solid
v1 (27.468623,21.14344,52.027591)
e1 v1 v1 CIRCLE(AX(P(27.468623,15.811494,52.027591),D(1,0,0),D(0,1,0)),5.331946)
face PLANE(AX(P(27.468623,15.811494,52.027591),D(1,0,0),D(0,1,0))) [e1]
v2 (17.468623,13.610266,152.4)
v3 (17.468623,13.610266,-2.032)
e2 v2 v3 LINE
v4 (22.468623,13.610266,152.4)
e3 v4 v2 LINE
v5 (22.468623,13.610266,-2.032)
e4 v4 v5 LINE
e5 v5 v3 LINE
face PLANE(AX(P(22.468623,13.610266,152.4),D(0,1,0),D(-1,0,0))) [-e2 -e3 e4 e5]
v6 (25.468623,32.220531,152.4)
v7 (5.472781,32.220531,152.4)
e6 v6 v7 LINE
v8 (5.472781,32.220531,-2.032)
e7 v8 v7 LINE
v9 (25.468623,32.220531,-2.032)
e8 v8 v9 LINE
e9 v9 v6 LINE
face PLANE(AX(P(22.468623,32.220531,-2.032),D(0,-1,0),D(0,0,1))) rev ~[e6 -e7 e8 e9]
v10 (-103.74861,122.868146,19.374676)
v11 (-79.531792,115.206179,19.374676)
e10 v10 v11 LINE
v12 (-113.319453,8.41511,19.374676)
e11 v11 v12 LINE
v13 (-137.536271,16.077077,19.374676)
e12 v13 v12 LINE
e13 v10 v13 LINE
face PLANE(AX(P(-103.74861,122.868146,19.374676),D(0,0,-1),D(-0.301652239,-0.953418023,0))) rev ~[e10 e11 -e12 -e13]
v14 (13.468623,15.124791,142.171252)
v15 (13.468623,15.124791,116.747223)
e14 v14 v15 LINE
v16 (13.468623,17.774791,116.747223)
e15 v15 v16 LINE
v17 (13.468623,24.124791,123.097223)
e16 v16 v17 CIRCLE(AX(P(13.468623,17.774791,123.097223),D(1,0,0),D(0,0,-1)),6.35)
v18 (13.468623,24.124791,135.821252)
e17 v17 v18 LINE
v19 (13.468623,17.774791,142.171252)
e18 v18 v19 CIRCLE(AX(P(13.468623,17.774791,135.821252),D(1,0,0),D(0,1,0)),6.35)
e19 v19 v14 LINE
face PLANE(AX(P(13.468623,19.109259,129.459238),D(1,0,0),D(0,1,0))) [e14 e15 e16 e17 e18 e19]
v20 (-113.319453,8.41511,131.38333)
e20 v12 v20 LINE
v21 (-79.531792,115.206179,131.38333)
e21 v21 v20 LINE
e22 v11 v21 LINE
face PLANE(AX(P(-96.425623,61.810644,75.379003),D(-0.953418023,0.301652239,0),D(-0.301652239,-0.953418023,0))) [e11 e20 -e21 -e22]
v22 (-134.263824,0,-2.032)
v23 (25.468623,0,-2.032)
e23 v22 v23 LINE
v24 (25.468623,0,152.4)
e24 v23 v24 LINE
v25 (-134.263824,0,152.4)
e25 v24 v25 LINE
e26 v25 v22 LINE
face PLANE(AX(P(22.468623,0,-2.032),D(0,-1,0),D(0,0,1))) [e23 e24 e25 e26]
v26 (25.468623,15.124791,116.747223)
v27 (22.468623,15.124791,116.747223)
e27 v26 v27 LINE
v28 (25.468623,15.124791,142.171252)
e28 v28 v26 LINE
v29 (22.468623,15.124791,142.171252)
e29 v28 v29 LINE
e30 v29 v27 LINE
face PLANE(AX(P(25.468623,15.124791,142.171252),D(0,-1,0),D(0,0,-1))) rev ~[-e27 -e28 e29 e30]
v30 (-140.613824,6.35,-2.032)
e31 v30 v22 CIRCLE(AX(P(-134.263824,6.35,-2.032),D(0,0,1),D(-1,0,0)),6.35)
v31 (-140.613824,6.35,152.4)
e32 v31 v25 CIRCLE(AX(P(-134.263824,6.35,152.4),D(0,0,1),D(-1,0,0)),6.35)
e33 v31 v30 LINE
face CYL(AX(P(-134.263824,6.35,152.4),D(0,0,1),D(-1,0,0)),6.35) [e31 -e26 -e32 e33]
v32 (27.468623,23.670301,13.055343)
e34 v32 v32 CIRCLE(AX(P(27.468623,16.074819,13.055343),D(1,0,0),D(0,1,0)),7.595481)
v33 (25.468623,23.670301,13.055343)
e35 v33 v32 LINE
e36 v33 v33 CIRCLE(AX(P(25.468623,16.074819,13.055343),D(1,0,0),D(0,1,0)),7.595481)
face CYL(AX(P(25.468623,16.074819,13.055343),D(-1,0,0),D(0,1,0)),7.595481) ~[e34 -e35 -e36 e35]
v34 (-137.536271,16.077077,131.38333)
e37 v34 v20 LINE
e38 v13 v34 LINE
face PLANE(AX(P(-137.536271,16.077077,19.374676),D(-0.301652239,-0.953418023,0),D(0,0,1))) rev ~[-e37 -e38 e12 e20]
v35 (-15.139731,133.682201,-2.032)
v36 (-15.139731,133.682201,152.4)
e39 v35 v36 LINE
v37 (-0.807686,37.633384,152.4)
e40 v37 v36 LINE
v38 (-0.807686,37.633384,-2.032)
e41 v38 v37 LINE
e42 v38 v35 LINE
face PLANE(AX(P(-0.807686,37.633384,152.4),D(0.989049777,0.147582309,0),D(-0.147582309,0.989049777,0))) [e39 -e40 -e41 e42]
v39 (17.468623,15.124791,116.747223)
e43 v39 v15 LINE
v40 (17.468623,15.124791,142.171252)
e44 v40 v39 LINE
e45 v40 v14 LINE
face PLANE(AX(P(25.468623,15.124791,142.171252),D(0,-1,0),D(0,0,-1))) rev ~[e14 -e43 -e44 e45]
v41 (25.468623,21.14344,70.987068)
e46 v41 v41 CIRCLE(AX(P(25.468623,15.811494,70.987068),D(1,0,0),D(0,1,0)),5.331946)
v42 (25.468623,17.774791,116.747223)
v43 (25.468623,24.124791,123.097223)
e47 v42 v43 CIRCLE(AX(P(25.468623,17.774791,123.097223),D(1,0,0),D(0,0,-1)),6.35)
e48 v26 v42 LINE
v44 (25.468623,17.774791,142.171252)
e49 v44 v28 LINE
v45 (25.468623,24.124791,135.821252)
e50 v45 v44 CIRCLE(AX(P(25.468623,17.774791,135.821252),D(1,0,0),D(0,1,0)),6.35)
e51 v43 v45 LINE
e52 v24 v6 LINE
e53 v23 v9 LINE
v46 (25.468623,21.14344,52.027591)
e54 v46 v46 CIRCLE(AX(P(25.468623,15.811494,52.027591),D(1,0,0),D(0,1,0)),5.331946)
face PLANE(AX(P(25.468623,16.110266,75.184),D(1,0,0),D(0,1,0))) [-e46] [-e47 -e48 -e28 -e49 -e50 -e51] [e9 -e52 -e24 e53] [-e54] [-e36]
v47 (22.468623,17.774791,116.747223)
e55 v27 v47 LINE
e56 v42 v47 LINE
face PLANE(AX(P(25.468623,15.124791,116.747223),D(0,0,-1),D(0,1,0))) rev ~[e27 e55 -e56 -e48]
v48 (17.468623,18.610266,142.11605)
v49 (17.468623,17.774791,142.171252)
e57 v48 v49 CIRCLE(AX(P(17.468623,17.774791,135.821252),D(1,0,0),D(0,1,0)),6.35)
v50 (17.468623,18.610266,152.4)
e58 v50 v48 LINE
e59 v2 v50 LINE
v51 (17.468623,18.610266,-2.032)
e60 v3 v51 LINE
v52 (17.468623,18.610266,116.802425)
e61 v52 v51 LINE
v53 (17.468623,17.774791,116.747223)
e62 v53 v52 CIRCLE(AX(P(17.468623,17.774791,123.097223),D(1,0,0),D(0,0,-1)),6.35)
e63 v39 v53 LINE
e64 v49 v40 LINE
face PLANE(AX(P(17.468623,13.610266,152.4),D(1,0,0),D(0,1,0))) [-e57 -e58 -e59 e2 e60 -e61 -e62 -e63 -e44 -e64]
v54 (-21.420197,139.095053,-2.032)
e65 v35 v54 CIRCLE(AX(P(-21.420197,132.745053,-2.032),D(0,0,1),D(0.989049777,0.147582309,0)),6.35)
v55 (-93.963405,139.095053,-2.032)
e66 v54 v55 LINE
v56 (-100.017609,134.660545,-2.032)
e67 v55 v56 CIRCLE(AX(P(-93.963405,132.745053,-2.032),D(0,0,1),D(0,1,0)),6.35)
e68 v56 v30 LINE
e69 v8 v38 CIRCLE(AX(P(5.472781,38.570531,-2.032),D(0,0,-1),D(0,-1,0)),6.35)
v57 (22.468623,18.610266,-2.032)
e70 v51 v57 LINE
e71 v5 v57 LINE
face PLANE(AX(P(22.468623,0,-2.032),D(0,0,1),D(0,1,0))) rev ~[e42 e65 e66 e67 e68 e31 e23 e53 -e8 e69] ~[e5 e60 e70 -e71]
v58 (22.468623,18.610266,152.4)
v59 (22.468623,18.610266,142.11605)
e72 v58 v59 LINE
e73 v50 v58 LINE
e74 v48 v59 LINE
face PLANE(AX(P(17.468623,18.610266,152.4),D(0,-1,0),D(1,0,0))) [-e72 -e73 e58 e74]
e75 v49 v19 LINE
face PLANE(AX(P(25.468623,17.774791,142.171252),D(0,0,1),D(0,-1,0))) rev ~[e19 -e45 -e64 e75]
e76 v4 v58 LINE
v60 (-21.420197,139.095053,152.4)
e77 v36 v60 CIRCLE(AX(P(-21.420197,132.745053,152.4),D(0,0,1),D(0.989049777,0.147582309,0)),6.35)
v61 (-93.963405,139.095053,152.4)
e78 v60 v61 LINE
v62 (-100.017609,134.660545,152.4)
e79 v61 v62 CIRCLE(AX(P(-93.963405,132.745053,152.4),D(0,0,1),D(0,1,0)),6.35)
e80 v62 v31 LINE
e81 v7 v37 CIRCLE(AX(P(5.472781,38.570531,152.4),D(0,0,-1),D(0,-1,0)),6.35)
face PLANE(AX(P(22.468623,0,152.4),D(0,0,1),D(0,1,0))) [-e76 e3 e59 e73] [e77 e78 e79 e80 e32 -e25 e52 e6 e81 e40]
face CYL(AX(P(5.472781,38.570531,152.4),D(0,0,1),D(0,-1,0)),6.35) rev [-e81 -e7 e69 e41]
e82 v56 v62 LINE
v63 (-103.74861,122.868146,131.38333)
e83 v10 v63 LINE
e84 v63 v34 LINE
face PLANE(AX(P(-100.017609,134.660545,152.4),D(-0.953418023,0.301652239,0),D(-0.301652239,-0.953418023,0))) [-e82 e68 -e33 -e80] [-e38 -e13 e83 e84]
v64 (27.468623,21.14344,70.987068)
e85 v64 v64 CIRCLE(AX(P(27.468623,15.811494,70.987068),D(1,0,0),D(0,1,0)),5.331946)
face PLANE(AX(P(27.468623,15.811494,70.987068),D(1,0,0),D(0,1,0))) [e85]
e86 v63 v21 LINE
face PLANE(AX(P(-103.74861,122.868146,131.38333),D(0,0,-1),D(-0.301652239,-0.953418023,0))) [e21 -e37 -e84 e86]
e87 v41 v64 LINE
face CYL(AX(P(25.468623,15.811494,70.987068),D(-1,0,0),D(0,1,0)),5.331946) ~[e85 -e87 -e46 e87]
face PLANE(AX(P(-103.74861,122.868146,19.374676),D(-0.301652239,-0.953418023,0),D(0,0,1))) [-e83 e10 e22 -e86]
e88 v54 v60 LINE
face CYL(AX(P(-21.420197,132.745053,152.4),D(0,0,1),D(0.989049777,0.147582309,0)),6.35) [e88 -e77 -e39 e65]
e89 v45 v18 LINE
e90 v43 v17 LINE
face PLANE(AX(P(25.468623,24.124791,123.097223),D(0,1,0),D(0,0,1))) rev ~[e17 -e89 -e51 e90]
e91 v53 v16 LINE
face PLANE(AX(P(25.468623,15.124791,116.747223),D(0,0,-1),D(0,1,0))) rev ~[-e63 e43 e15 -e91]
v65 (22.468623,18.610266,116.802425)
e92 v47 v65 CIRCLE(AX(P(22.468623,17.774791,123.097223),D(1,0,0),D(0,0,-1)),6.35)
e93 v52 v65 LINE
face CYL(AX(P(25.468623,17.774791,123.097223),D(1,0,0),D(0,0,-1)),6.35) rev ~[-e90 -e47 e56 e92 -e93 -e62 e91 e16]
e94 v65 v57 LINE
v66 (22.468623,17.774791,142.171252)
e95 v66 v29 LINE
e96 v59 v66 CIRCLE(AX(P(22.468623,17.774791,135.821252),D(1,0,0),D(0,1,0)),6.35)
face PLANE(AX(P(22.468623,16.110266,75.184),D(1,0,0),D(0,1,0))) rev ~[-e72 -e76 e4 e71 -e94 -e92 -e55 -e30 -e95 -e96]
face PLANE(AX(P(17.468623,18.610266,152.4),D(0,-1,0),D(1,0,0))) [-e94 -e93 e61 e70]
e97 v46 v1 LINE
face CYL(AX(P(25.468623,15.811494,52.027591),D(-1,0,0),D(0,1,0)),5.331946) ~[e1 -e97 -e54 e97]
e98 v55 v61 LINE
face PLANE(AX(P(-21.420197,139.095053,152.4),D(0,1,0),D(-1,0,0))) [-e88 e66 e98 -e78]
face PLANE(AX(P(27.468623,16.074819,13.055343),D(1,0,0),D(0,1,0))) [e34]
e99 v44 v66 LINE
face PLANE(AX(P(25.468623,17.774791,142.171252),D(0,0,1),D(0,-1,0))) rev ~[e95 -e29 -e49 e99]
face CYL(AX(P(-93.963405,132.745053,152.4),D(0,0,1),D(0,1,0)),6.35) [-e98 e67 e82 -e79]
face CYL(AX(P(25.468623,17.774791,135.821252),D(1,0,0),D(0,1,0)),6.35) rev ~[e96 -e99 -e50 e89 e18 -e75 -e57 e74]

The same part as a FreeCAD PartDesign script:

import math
import FreeCAD as App
import Part
import Sketcher
from FreeCAD import Vector
Q = App.Units.Quantity

doc = App.newDocument("Part")
params = doc.addObject("Spreadsheet::Sheet", "Params")
for row, (alias, value) in enumerate([
    ("sketch1_radius", "0.5 in"),
    ("sketch1_radius2", "0.15 in"),
    ("pad1_length", "6 in"),
    ("sketch2_radius", "0.25 in"),
    ("pad2_length", "6.08 in"),
    ("sketch3_height", "6.08 in"),
    ("pad3_length", "3 mm"),
    ("pad4_length", "2 mm"),
    ("sketch5_radius", "0.25 in"),
    ("pocket1_length", "12 mm"),
    ("pocket2_length", "1 in"),
], start=1):
    params.set(f"A{row}", alias)
    params.set(f"B{row}", "=" + value)
    params.setAlias(f"B{row}", alias)

body = doc.addObject("PartDesign::Body", "Body")

sketch1 = body.newObject("Sketcher::SketchObject", "Sketch")
sketch1.AttachmentSupport = (doc.getObject("XY_Plane"), [""])
sketch1.MapMode = "FlatFace"
sketch1.addGeometry([
    Part.LineSegment(Vector(-134.263824, 0, 0), Vector(22.468623, 0, 0)),
    Part.LineSegment(Vector(22.468623, 0, 0), Vector(22.468623, 6.35, 0)),
    Part.LineSegment(Vector(22.468623, 6.35, 0), Vector(0, 6.35, 0)),
    Part.LineSegment(Vector(0, 6.35, 0), Vector(-128.751981, 6.35, 0)),
    Part.ArcOfCircle(Part.Circle(Vector(-128.751981, 10.16, 0), Vector(0, 0, 1), 3.81), math.radians(162.443132), math.radians(270)),
    Part.LineSegment(Vector(-132.384504, 11.309295, 0), Vector(-94.805226, 130.084348, 0)),
    Part.ArcOfCircle(Part.Circle(Vector(-91.172703, 128.935053, 0), Vector(0, 0, 1), 3.81), math.radians(90), math.radians(162.443132)),
    Part.LineSegment(Vector(-91.172703, 132.745053, 0), Vector(-24.703865, 132.745053, 0)),
    Part.ArcOfCircle(Part.Circle(Vector(-24.703865, 128.935053, 0), Vector(0, 0, 1), 3.81), math.radians(8.486844), math.radians(90)),
    Part.LineSegment(Vector(-20.935586, 129.497342, 0), Vector(-7.088152, 36.696236, 0)),
    Part.ArcOfCircle(Part.Circle(Vector(5.472781, 38.570531, 0), Vector(0, 0, 1), 12.7), math.radians(-171.513156), math.radians(-90)),
    Part.LineSegment(Vector(5.472781, 25.870531, 0), Vector(22.468623, 25.870531, 0)),
    Part.LineSegment(Vector(22.468623, 25.870531, 0), Vector(22.468623, 32.220531, 0)),
    Part.LineSegment(Vector(22.468623, 32.220531, 0), Vector(5.472781, 32.220531, 0)),
    Part.ArcOfCircle(Part.Circle(Vector(5.472781, 38.570531, 0), Vector(0, 0, 1), 6.35), math.radians(-171.513156), math.radians(-90)),
    Part.LineSegment(Vector(-0.807686, 37.633384, 0), Vector(-15.139731, 133.682201, 0)),
    Part.ArcOfCircle(Part.Circle(Vector(-21.420197, 132.745053, 0), Vector(0, 0, 1), 6.35), math.radians(8.486844), math.radians(90)),
    Part.LineSegment(Vector(-21.420197, 139.095053, 0), Vector(-93.963405, 139.095053, 0)),
    Part.ArcOfCircle(Part.Circle(Vector(-93.963405, 132.745053, 0), Vector(0, 0, 1), 6.35), math.radians(90), math.radians(162.443132)),
    Part.LineSegment(Vector(-100.017609, 134.660545, 0), Vector(-140.613824, 6.35, 0)),
    Part.ArcOfCircle(Part.Circle(Vector(-134.263824, 6.35, 0), Vector(0, 0, 1), 6.35), math.radians(180), math.radians(270)),
], False)
sketch1.addConstraint([
    Sketcher.Constraint("Coincident", 0, 2, 1, 1),
    Sketcher.Constraint("Coincident", 1, 2, 2, 1),
    Sketcher.Constraint("Coincident", 2, 2, 3, 1),
    Sketcher.Constraint("Tangent", 3, 2, 4, 2),
    Sketcher.Constraint("Tangent", 4, 1, 5, 1),
    Sketcher.Constraint("Tangent", 5, 2, 6, 2),
    Sketcher.Constraint("Tangent", 6, 1, 7, 1),
    Sketcher.Constraint("Tangent", 7, 2, 8, 2),
    Sketcher.Constraint("Tangent", 8, 1, 9, 1),
    Sketcher.Constraint("Tangent", 9, 2, 10, 1),
    Sketcher.Constraint("Tangent", 10, 2, 11, 1),
    Sketcher.Constraint("Coincident", 11, 2, 12, 1),
    Sketcher.Constraint("Coincident", 12, 2, 13, 1),
    Sketcher.Constraint("Tangent", 13, 2, 14, 2),
    Sketcher.Constraint("Tangent", 14, 1, 15, 1),
    Sketcher.Constraint("Tangent", 15, 2, 16, 1),
    Sketcher.Constraint("Tangent", 16, 2, 17, 1),
    Sketcher.Constraint("Tangent", 17, 2, 18, 1),
    Sketcher.Constraint("Tangent", 18, 2, 19, 1),
    Sketcher.Constraint("Coincident", 19, 2, 20, 1),
    Sketcher.Constraint("Tangent", 20, 2, 0, 1),
    Sketcher.Constraint("Horizontal", 0),
    Sketcher.Constraint("Vertical", 1),
    Sketcher.Constraint("Horizontal", 2),
    Sketcher.Constraint("Horizontal", 3),
    Sketcher.Constraint("Horizontal", 7),
    Sketcher.Constraint("Horizontal", 11),
    Sketcher.Constraint("Vertical", 12),
    Sketcher.Constraint("Horizontal", 13),
    Sketcher.Constraint("Horizontal", 17),
    Sketcher.Constraint("Coincident", 14, 3, 10, 3),
    Sketcher.Constraint("Equal", 4, 6),
    Sketcher.Constraint("Equal", 6, 8),
    Sketcher.Constraint("Equal", 14, 16),
    Sketcher.Constraint("Equal", 16, 18),
    Sketcher.Constraint("Equal", 18, 20),
    Sketcher.Constraint("PointOnObject", 0, 2, -1),
    Sketcher.Constraint("PointOnObject", 2, 2, -2),
    Sketcher.Constraint("Parallel", 9, 15),
    Sketcher.Constraint("Parallel", 5, 19),
    Sketcher.Constraint("Horizontal", 20, 3, 1, 2),
    Sketcher.Constraint("Horizontal", 18, 3, 6, 1),
    Sketcher.Constraint("Horizontal", 3, 2, 19, 2),
    Sketcher.Constraint("Vertical", 1, 2, 11, 2),
    Sketcher.Constraint("Equal", 1, 12),
    Sketcher.Constraint("Radius", 10, Q("0.5 in")),
    Sketcher.Constraint("Radius", 4, Q("0.15 in")),
    Sketcher.Constraint("DistanceX", 3, 2, 3, 1, 128.751981),
    Sketcher.Constraint("DistanceY", -1, 1, 15, 2, 133.682201),
    Sketcher.Constraint("DistanceX", 18, 3, 6, 3, 2.790701),
    Sketcher.Constraint("DistanceX", 4, 1, 6, 3, 41.2118),
    Sketcher.Constraint("Distance", 5, 124.57815),
    Sketcher.Constraint("Distance", 9, 93.828549),
    Sketcher.Constraint("DistanceX", 0, 1, 0, 2, 156.732447),
    Sketcher.Constraint("DistanceX", 7, 1, 7, 2, 66.468838),
])
sketch1.setExpression("Constraints[45]", "Params.sketch1_radius")
sketch1.setExpression("Constraints[46]", "Params.sketch1_radius2")
pad1 = body.newObject("PartDesign::Pad", "Pad")
pad1.Profile = sketch1
pad1.setExpression("Length", "Params.pad1_length")

sketch2 = body.newObject("Sketcher::SketchObject", "Sketch001")
sketch2.AttachmentSupport = (doc.getObject("XY_Plane"), [""])
sketch2.MapMode = "FlatFace"
sketch2.AttachmentOffset = App.Placement(Vector(0, 0, 6 * 25.4), App.Rotation())
sketch2.addGeometry([
    Part.LineSegment(Vector(-134.263824, 0, 0), Vector(22.468623, 0, 0)),
    Part.LineSegment(Vector(22.468623, 0, 0), Vector(22.468623, 13.610266, 0)),
    Part.LineSegment(Vector(22.468623, 13.610266, 0), Vector(17.468623, 13.610266, 0)),
    Part.LineSegment(Vector(17.468623, 13.610266, 0), Vector(17.468623, 18.610266, 0)),
    Part.LineSegment(Vector(17.468623, 18.610266, 0), Vector(22.468623, 18.610266, 0)),
    Part.LineSegment(Vector(22.468623, 18.610266, 0), Vector(22.468623, 32.220531, 0)),
    Part.LineSegment(Vector(22.468623, 32.220531, 0), Vector(5.472781, 32.220531, 0)),
    Part.ArcOfCircle(Part.Circle(Vector(5.472781, 38.570531, 0), Vector(0, 0, 1), 6.35), math.radians(-171.513156), math.radians(-90)),
    Part.LineSegment(Vector(-0.807686, 37.633384, 0), Vector(-15.139731, 133.682201, 0)),
    Part.ArcOfCircle(Part.Circle(Vector(-21.420197, 132.745053, 0), Vector(0, 0, 1), 6.35), math.radians(8.486844), math.radians(90)),
    Part.LineSegment(Vector(-21.420197, 139.095053, 0), Vector(-93.963405, 139.095053, 0)),
    Part.ArcOfCircle(Part.Circle(Vector(-93.963405, 132.745053, 0), Vector(0, 0, 1), 6.35), math.radians(90), math.radians(162.443132)),
    Part.LineSegment(Vector(-100.017609, 134.660545, 0), Vector(-140.613824, 6.35, 0)),
    Part.ArcOfCircle(Part.Circle(Vector(-134.263824, 6.35, 0), Vector(0, 0, 1), 6.35), math.radians(180), math.radians(270)),
], False)
sketch2.addConstraint([
    Sketcher.Constraint("Coincident", 0, 2, 1, 1),
    Sketcher.Constraint("Coincident", 1, 2, 2, 1),
    Sketcher.Constraint("Coincident", 2, 2, 3, 1),
    Sketcher.Constraint("Coincident", 3, 2, 4, 1),
    Sketcher.Constraint("Coincident", 4, 2, 5, 1),
    Sketcher.Constraint("Coincident", 5, 2, 6, 1),
    Sketcher.Constraint("Tangent", 6, 2, 7, 2),
    Sketcher.Constraint("Tangent", 7, 1, 8, 1),
    Sketcher.Constraint("Tangent", 8, 2, 9, 1),
    Sketcher.Constraint("Tangent", 9, 2, 10, 1),
    Sketcher.Constraint("Tangent", 10, 2, 11, 1),
    Sketcher.Constraint("Tangent", 11, 2, 12, 1),
    Sketcher.Constraint("Coincident", 12, 2, 13, 1),
    Sketcher.Constraint("Tangent", 13, 2, 0, 1),
    Sketcher.Constraint("Horizontal", 0),
    Sketcher.Constraint("Vertical", 1),
    Sketcher.Constraint("Horizontal", 2),
    Sketcher.Constraint("Vertical", 3),
    Sketcher.Constraint("Horizontal", 4),
    Sketcher.Constraint("Vertical", 5),
    Sketcher.Constraint("Horizontal", 6),
    Sketcher.Constraint("Horizontal", 10),
    Sketcher.Constraint("Equal", 7, 9),
    Sketcher.Constraint("Equal", 9, 11),
    Sketcher.Constraint("Equal", 11, 13),
    Sketcher.Constraint("PointOnObject", 0, 2, -1),
    Sketcher.Constraint("Horizontal", 13, 3, 12, 2),
    Sketcher.Constraint("Vertical", 1, 2, 4, 2),
    Sketcher.Constraint("Equal", 4, 3),
    Sketcher.Constraint("Equal", 1, 5),
    Sketcher.Constraint("Radius", 7, Q("0.25 in")),
    Sketcher.Constraint("DistanceX", 2, 2, 2, 1, 5.0),
    Sketcher.Constraint("DistanceY", -1, 1, 8, 2, 133.682201),
    Sketcher.Constraint("DistanceX", 0, 1, 0, 2, 156.732447),
    Sketcher.Constraint("DistanceX", 6, 2, 6, 1, 16.995842),
    Sketcher.Constraint("DistanceX", 10, 2, 10, 1, 72.543208),
    Sketcher.Constraint("DistanceY", 1, 1, 1, 2, 13.610266),
    Sketcher.Constraint("DistanceX", -1, 1, 7, 3, 5.472781),
    Sketcher.Constraint("DistanceX", 8, 2, -1, 1, 15.139731),
])
sketch2.setExpression("Constraints[30]", "Params.sketch2_radius")
pad2 = body.newObject("PartDesign::Pad", "Pad001")
pad2.Profile = sketch2
pad2.setExpression("Length", "Params.pad2_length")
pad2.Reversed = True

sketch3 = body.newObject("Sketcher::SketchObject", "Sketch002")
sketch3.AttachmentSupport = (doc.getObject("YZ_Plane"), [""])
sketch3.MapMode = "FlatFace"
sketch3.AttachmentOffset = App.Placement(Vector(0, 0, 22.468623), App.Rotation())
sketch3.addGeometry([
    Part.LineSegment(Vector(0, 152.4, 0), Vector(0, -2.032, 0)),
    Part.LineSegment(Vector(0, -2.032, 0), Vector(32.220531, -2.032, 0)),
    Part.LineSegment(Vector(32.220531, -2.032, 0), Vector(32.220531, 152.4, 0)),
    Part.LineSegment(Vector(32.220531, 152.4, 0), Vector(0, 152.4, 0)),
], False)
sketch3.addConstraint([
    Sketcher.Constraint("Coincident", 0, 2, 1, 1),
    Sketcher.Constraint("Coincident", 1, 2, 2, 1),
    Sketcher.Constraint("Coincident", 2, 2, 3, 1),
    Sketcher.Constraint("Coincident", 3, 2, 0, 1),
    Sketcher.Constraint("Vertical", 0),
    Sketcher.Constraint("Horizontal", 1),
    Sketcher.Constraint("Vertical", 2),
    Sketcher.Constraint("Horizontal", 3),
    Sketcher.Constraint("PointOnObject", 0, 2, -2),
    Sketcher.Constraint("DistanceY", -1, 1, 2, 2, Q("6 in")),
    Sketcher.Constraint("DistanceY", 0, 2, 0, 1, Q("6.08 in")),
    Sketcher.Constraint("DistanceX", 1, 1, 1, 2, 32.220531),
])
sketch3.setExpression("Constraints[10]", "Params.sketch3_height")
pad3 = body.newObject("PartDesign::Pad", "Pad002")
pad3.Profile = sketch3
pad3.setExpression("Length", "Params.pad3_length")

sketch4 = body.newObject("Sketcher::SketchObject", "Sketch003")
sketch4.AttachmentSupport = (doc.getObject("YZ_Plane"), [""])
sketch4.MapMode = "FlatFace"
sketch4.AttachmentOffset = App.Placement(Vector(0, 0, 25.468623), App.Rotation())
sketch4.addGeometry([
    Part.Circle(Vector(16.074819, 13.055343, 0), Vector(0, 0, 1), 7.595481),
    Part.Circle(Vector(15.811494, 52.027591, 0), Vector(0, 0, 1), 5.331946),
    Part.Circle(Vector(15.811494, 70.987068, 0), Vector(0, 0, 1), 5.331946),
], False)
sketch4.addConstraint([
    Sketcher.Constraint("Equal", 1, 2),
    Sketcher.Constraint("Vertical", 1, 3, 2, 3),
    Sketcher.Constraint("Diameter", 0, 15.190963),
    Sketcher.Constraint("Diameter", 1, 10.663892),
    Sketcher.Constraint("DistanceX", -1, 1, 0, 3, 16.074819),
    Sketcher.Constraint("DistanceY", -1, 1, 1, 3, 52.027591),
    Sketcher.Constraint("DistanceY", -1, 1, 2, 3, 70.987068),
    Sketcher.Constraint("DistanceY", -1, 1, 0, 3, 13.055343),
    Sketcher.Constraint("DistanceX", -1, 1, 1, 3, 15.811494),
])
pad4 = body.newObject("PartDesign::Pad", "Pad003")
pad4.Profile = sketch4
pad4.setExpression("Length", "Params.pad4_length")

sketch5 = body.newObject("Sketcher::SketchObject", "Sketch004")
sketch5.AttachmentSupport = (doc.getObject("YZ_Plane"), [""])
sketch5.MapMode = "FlatFace"
sketch5.AttachmentOffset = App.Placement(Vector(0, 0, 25.468623), App.Rotation())
sketch5.addGeometry([
    Part.LineSegment(Vector(17.774791, 142.171252, 0), Vector(15.124791, 142.171252, 0)),
    Part.LineSegment(Vector(15.124791, 142.171252, 0), Vector(15.124791, 116.747223, 0)),
    Part.LineSegment(Vector(15.124791, 116.747223, 0), Vector(17.774791, 116.747223, 0)),
    Part.ArcOfCircle(Part.Circle(Vector(17.774791, 123.097223, 0), Vector(0, 0, 1), 6.35), math.radians(-90), math.radians(0)),
    Part.LineSegment(Vector(24.124791, 123.097223, 0), Vector(24.124791, 135.821252, 0)),
    Part.ArcOfCircle(Part.Circle(Vector(17.774791, 135.821252, 0), Vector(0, 0, 1), 6.35), math.radians(0), math.radians(90)),
], False)
sketch5.addConstraint([
    Sketcher.Constraint("Coincident", 0, 2, 1, 1),
    Sketcher.Constraint("Coincident", 1, 2, 2, 1),
    Sketcher.Constraint("Tangent", 2, 2, 3, 1),
    Sketcher.Constraint("Tangent", 3, 2, 4, 1),
    Sketcher.Constraint("Tangent", 4, 2, 5, 1),
    Sketcher.Constraint("Tangent", 5, 2, 0, 1),
    Sketcher.Constraint("Horizontal", 0),
    Sketcher.Constraint("Vertical", 1),
    Sketcher.Constraint("Horizontal", 2),
    Sketcher.Constraint("Vertical", 4),
    Sketcher.Constraint("Equal", 3, 5),
    Sketcher.Constraint("Radius", 3, Q("0.25 in")),
    Sketcher.Constraint("DistanceX", 0, 2, 0, 1, 2.65),
    Sketcher.Constraint("DistanceY", 1, 2, 1, 1, 25.42403),
    Sketcher.Constraint("DistanceX", -1, 1, 3, 3, 17.774791),
    Sketcher.Constraint("DistanceY", -1, 1, 3, 3, 123.097223),
])
sketch5.setExpression("Constraints[11]", "Params.sketch5_radius")
pocket1 = body.newObject("PartDesign::Pocket", "Pocket")
pocket1.Profile = sketch5
pocket1.setExpression("Length", "Params.pocket1_length")

sketch6 = body.newObject("Sketcher::SketchObject", "Sketch005")
sketch6.Placement = App.Placement(Vector(-129.645064, 41.018444, 0), App.Rotation(Vector(-0.301652239, -0.953418023, 0), Vector(0, 0, 1), Vector(-0.953418023, 0.301652239, 0), "ZXY"))
sketch6.addGeometry([
    Part.LineSegment(Vector(-85.848704, 131.38333, 0), Vector(-85.848704, 19.374676, 0)),
    Part.LineSegment(Vector(-85.848704, 19.374676, 0), Vector(26.15995, 19.374676, 0)),
    Part.LineSegment(Vector(26.15995, 19.374676, 0), Vector(26.15995, 131.38333, 0)),
    Part.LineSegment(Vector(26.15995, 131.38333, 0), Vector(-85.848704, 131.38333, 0)),
], False)
sketch6.addConstraint([
    Sketcher.Constraint("Coincident", 0, 2, 1, 1),
    Sketcher.Constraint("Coincident", 1, 2, 2, 1),
    Sketcher.Constraint("Coincident", 2, 2, 3, 1),
    Sketcher.Constraint("Coincident", 3, 2, 0, 1),
    Sketcher.Constraint("Vertical", 0),
    Sketcher.Constraint("Horizontal", 1),
    Sketcher.Constraint("Vertical", 2),
    Sketcher.Constraint("Horizontal", 3),
    Sketcher.Constraint("Equal", 3, 0),
    Sketcher.Constraint("DistanceX", 1, 1, 1, 2, 112.008654),
    Sketcher.Constraint("DistanceX", -1, 1, 1, 2, 26.15995),
    Sketcher.Constraint("DistanceY", -1, 1, 2, 2, 131.38333),
])
pocket2 = body.newObject("PartDesign::Pocket", "Pocket001")
pocket2.Profile = sketch6
pocket2.setExpression("Length", "Params.pocket2_length")

doc.recompute()
